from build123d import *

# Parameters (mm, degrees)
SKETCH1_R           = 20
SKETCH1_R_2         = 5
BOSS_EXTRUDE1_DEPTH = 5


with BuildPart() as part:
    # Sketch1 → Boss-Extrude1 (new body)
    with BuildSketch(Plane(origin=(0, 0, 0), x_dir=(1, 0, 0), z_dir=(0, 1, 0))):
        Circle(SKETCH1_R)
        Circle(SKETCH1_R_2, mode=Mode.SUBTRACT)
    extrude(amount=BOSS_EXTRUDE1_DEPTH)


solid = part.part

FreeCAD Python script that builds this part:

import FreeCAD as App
import Part
import Sketcher

V = App.Vector

doc = App.newDocument("Part")
body = doc.addObject("PartDesign::Body", "Body")

sketch1 = body.newObject("Sketcher::SketchObject", "Sketch")
sketch1.AttachmentSupport = (doc.getObject("XZ_Plane"), [""])
sketch1.MapMode = "FlatFace"
sketch1.addGeometry(Part.Circle(V(0, 0, 0), V(0, 0, 1), 20), False)
sketch1.addGeometry(Part.Circle(V(0, 0, 0), V(0, 0, 1), 5), False)
sketch1.addConstraint(Sketcher.Constraint("Coincident", 0, 3, -1, 1))
sketch1.addConstraint(Sketcher.Constraint("Coincident", 1, 3, -1, 1))
sketch1.addConstraint(Sketcher.Constraint("Diameter", 0, 40.0))
sketch1.addConstraint(Sketcher.Constraint("Diameter", 1, 10.0))
pad1 = body.newObject("PartDesign::Pad", "Pad")
pad1.Profile = sketch1
pad1.Length = 5
pad1.Reversed = True

doc.recompute()
